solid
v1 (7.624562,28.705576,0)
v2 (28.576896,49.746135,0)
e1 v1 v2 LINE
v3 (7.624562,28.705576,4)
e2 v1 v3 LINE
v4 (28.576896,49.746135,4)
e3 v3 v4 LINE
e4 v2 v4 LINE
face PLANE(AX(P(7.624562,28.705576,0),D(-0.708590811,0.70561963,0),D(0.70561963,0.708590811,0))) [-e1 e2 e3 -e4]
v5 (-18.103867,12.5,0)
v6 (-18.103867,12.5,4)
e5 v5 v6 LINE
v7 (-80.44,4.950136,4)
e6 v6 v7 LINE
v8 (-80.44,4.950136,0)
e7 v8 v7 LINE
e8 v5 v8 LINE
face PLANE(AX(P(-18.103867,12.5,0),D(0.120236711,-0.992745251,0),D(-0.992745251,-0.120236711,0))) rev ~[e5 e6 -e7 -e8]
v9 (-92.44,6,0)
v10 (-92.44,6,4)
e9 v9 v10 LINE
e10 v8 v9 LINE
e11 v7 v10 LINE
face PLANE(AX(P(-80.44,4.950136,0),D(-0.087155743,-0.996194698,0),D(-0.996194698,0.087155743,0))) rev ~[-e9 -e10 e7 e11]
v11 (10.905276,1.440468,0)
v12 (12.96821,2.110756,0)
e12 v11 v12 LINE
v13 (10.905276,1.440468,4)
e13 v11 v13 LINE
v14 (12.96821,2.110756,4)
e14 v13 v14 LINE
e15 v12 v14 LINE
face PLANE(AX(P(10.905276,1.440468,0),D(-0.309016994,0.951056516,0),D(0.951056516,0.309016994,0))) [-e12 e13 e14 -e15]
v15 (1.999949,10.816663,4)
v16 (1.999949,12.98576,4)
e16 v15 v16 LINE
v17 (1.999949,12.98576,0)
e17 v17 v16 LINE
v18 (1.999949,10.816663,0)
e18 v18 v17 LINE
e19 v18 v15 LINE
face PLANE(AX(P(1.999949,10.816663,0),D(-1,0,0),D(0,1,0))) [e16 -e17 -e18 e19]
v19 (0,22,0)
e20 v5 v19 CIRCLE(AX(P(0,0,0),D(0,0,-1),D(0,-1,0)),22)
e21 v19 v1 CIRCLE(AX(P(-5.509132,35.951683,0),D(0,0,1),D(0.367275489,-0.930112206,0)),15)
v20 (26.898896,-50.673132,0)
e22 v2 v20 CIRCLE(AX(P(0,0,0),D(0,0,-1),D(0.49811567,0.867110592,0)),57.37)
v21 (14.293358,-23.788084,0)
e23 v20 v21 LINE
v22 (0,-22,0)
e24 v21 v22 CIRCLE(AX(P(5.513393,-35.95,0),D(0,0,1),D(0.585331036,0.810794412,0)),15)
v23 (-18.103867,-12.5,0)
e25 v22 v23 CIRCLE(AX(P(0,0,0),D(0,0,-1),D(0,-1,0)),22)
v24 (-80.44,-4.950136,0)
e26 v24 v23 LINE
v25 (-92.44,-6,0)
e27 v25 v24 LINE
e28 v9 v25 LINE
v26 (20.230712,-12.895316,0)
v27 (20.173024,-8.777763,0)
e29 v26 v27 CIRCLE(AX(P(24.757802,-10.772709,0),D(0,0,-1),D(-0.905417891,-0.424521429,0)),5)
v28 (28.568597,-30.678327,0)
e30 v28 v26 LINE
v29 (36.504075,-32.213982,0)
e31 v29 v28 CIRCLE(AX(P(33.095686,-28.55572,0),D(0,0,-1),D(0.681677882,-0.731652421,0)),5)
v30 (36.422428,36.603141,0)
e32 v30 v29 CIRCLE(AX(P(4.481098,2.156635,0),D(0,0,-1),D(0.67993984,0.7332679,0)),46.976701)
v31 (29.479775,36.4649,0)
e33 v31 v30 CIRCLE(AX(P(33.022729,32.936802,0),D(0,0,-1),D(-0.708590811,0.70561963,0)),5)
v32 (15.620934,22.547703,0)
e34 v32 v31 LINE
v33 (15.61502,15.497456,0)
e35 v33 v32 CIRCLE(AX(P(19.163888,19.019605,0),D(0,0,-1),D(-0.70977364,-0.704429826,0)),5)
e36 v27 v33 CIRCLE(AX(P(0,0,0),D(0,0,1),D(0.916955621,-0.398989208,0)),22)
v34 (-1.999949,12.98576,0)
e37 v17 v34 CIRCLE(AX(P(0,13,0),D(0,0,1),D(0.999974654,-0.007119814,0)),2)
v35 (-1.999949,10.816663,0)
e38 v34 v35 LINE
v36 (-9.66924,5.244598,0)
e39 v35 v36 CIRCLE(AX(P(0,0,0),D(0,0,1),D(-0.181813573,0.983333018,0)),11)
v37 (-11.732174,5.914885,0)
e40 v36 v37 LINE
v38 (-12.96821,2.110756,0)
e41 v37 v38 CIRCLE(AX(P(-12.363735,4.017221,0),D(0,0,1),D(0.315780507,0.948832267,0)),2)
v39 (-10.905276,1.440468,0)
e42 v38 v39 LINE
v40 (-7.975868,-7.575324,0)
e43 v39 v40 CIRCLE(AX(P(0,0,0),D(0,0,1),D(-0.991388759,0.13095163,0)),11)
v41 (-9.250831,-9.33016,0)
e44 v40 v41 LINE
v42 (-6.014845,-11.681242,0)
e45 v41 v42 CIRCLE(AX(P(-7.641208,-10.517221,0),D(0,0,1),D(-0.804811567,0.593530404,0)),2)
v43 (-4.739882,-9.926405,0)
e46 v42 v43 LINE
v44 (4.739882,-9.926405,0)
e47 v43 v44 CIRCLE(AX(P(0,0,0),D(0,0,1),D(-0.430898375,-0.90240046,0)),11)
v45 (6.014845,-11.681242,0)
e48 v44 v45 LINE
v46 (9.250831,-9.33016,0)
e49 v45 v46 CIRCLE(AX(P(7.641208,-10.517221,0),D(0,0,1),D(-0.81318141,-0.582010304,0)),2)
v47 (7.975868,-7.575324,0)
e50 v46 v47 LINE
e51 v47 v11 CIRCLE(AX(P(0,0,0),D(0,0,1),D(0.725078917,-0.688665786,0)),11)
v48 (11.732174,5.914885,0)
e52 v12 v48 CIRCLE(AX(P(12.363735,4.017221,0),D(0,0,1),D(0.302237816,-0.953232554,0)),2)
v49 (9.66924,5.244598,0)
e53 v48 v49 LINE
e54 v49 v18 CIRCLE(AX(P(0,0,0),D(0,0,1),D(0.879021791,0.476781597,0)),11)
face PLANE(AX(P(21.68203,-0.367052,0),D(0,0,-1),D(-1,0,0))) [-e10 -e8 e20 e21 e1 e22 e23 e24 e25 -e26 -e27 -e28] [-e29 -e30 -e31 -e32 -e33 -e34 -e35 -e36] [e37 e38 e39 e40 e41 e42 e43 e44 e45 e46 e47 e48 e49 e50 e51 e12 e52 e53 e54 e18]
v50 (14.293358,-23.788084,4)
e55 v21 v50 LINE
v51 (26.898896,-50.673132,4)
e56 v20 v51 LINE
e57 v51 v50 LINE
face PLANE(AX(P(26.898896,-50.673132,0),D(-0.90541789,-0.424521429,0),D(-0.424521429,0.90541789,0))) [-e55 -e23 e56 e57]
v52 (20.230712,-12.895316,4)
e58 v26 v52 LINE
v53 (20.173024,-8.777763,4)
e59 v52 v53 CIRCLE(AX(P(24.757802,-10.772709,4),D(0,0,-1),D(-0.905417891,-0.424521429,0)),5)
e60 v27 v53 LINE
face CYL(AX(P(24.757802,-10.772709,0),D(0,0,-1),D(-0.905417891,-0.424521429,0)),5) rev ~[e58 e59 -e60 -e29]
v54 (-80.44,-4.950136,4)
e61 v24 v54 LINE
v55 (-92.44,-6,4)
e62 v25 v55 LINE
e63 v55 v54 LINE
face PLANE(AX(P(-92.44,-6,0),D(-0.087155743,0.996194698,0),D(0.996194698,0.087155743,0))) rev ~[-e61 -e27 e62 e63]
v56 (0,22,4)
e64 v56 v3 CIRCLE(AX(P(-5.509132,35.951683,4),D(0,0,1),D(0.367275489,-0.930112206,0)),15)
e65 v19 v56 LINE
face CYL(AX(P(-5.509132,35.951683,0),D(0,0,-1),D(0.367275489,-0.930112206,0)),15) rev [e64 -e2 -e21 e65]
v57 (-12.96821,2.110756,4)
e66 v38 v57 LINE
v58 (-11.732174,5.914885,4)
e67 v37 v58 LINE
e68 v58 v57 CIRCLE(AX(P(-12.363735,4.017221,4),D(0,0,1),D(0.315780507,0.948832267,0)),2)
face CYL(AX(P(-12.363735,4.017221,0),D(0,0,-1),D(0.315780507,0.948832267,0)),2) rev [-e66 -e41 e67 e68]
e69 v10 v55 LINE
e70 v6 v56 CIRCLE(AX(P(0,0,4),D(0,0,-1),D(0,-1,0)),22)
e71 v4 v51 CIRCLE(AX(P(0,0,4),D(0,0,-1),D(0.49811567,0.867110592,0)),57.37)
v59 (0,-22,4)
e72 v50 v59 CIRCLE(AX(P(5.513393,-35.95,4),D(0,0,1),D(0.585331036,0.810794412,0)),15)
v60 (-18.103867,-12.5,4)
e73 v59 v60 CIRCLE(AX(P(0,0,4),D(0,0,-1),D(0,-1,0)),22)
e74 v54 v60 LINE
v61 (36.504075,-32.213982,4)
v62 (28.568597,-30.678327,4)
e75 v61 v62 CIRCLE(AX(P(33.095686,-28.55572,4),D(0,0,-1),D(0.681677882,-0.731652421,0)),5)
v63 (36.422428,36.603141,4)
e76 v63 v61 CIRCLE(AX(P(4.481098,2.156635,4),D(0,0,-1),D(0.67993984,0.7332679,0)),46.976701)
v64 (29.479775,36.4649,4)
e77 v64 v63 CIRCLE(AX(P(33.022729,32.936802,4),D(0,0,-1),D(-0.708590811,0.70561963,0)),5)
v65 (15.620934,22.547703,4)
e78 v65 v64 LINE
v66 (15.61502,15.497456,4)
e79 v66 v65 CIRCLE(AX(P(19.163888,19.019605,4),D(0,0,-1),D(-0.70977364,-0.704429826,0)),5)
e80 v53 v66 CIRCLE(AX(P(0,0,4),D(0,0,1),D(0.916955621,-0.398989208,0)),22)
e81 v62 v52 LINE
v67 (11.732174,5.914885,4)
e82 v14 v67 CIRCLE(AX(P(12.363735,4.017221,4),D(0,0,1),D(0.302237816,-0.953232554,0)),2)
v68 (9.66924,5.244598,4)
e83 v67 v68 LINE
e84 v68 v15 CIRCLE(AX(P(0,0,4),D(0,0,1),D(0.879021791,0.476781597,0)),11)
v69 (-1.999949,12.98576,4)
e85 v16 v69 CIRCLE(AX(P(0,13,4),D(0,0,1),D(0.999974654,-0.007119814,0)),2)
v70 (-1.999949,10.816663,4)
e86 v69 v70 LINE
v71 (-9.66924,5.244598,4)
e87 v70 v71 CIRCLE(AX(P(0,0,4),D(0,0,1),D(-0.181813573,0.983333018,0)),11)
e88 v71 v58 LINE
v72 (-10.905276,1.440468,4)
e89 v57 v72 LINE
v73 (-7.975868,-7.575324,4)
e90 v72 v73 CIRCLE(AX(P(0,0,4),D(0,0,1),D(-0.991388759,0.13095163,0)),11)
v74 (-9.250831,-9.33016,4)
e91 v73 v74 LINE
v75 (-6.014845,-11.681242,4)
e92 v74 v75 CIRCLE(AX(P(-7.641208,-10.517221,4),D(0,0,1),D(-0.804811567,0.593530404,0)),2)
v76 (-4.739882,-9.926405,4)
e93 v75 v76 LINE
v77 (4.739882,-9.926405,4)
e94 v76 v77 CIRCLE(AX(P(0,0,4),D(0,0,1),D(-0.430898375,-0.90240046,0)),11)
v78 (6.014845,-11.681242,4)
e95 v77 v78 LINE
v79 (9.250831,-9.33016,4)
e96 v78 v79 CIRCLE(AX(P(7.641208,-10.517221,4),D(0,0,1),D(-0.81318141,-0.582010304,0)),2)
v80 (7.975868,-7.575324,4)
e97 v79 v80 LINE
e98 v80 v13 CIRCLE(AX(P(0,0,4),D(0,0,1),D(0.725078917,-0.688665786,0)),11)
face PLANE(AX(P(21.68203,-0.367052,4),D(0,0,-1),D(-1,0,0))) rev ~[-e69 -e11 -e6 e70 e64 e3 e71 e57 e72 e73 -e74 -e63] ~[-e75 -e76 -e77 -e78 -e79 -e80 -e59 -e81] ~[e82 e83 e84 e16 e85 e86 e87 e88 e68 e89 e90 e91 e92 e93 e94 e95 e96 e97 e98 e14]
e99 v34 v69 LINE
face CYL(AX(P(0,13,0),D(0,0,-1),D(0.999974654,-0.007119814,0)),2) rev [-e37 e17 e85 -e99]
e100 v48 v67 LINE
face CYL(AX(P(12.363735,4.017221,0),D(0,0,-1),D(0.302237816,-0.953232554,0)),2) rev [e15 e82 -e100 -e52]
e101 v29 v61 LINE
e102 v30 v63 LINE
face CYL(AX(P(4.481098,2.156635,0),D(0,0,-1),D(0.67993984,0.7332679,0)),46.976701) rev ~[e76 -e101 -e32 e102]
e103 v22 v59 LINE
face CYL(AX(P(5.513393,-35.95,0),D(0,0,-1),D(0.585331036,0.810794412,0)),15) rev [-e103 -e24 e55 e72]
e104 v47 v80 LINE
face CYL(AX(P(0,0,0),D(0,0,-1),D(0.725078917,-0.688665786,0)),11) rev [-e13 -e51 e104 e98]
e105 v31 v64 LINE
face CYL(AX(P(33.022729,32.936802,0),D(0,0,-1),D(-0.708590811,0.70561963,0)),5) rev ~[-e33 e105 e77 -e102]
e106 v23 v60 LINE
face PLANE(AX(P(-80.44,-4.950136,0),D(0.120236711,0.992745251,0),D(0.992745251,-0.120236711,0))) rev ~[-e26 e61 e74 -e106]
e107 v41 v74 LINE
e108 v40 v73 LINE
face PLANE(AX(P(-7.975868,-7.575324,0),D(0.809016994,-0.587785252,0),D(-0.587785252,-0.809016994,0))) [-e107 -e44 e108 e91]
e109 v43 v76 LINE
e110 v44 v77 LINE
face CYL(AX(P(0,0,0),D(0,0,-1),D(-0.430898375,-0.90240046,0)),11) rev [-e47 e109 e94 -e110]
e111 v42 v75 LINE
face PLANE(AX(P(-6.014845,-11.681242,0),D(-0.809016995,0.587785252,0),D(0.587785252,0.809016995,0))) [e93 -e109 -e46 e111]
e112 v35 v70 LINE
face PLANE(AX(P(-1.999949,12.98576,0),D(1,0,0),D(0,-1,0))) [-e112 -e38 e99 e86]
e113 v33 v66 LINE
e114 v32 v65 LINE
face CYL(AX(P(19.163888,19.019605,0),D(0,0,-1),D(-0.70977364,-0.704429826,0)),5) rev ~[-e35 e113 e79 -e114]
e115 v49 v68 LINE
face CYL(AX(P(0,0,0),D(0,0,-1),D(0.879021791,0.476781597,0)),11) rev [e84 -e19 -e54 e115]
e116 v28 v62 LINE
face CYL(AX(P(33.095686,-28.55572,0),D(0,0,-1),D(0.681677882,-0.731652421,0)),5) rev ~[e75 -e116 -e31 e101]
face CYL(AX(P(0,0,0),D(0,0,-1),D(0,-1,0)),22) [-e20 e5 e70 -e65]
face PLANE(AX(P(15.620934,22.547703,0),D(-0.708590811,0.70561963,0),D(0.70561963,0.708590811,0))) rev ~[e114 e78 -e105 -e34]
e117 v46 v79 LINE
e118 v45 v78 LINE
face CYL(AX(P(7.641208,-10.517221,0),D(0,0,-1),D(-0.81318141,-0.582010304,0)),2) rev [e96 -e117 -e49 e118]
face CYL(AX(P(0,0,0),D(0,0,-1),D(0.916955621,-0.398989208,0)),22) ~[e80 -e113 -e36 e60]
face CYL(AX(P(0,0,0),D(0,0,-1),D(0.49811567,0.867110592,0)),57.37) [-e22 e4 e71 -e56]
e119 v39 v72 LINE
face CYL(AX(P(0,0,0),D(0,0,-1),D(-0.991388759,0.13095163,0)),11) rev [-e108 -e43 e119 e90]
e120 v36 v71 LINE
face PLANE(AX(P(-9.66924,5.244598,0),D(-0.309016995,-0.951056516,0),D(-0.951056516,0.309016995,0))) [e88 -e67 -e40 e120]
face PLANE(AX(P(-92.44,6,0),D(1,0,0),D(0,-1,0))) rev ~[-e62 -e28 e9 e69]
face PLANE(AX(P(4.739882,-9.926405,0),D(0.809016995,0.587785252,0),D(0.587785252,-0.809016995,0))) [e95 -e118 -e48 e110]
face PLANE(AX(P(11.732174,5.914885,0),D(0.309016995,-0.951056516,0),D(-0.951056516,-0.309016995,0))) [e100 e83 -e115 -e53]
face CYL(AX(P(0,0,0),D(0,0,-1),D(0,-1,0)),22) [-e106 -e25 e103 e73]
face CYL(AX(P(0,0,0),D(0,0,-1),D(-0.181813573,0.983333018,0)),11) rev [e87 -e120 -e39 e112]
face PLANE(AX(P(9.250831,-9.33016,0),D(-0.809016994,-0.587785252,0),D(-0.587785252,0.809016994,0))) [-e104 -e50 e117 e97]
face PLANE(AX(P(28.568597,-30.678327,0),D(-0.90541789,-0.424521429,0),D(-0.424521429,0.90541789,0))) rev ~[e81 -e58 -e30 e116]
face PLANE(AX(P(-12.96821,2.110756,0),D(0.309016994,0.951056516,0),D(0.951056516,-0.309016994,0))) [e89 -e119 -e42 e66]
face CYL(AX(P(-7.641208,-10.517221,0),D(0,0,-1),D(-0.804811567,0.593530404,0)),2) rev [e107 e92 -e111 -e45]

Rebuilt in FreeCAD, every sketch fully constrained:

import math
import FreeCAD as App
import Part
import Sketcher
Q = App.Units.Quantity

doc = App.newDocument("Part")
params = doc.addObject("Spreadsheet::Sheet", "Params")
for row, (alias, value) in enumerate([
    ("sketch1_radius", "22 mm"),
    ("sketch1_radius2", "15 mm"),
    ("sketch1_radius3", "5 mm"),
    ("sketch1_radius4", "2 mm"),
    ("sketch1_radius5", "11 mm"),
    ("pad1_length", "4 mm"),
], start=1):
    params.set(f"A{row}", alias)
    params.set(f"B{row}", "=" + value)
    params.setAlias(f"B{row}", alias)

body = doc.addObject("PartDesign::Body", "Body")

sketch1 = body.newObject("Sketcher::SketchObject", "Sketch")
sketch1.AttachmentSupport = (doc.getObject("XY_Plane"), [""])
sketch1.MapMode = "FlatFace"
sketch1.addGeometry([
    Part.LineSegment(App.Vector(-18.1, 12.5, 0), App.Vector(-80.4, 5, 0)),
    Part.LineSegment(App.Vector(-80.4, 5, 0), App.Vector(-92.4, 6, 0)),
    Part.LineSegment(App.Vector(-92.4, 6, 0), App.Vector(-92.4, -6, 0)),
    Part.LineSegment(App.Vector(-92.4, -6, 0), App.Vector(-80.4, -5, 0)),
    Part.LineSegment(App.Vector(-80.4, -5, 0), App.Vector(-18.1, -12.5, 0)),
    Part.ArcOfCircle(Part.Circle(App.Vector(0, 0, 0), App.Vector(0, 0, 1), 22), math.radians(-145), math.radians(-90)),
    Part.ArcOfCircle(Part.Circle(App.Vector(5.5, -35.9, 0), App.Vector(0, 0, 1), 15), math.radians(54), math.radians(112)),
    Part.LineSegment(App.Vector(14.3, -23.8, 0), App.Vector(26.9, -50.7, 0)),
    Part.ArcOfCircle(Part.Circle(App.Vector(0, 0, 0), App.Vector(0, 0, 1), 57.4), math.radians(-62), math.radians(60)),
    Part.LineSegment(App.Vector(28.6, 49.7, 0), App.Vector(7.6, 28.7, 0)),
    Part.ArcOfCircle(Part.Circle(App.Vector(-5.5, 36, 0), App.Vector(0, 0, 1), 15), math.radians(-68), math.radians(-29)),
    Part.ArcOfCircle(Part.Circle(App.Vector(0, 0, 0), App.Vector(0, 0, 1), 22), math.radians(90), math.radians(145)),
    Part.ArcOfCircle(Part.Circle(App.Vector(24.8, -10.8, 0), App.Vector(0, 0, 1), 5), math.radians(156), math.radians(205)),
    Part.ArcOfCircle(Part.Circle(App.Vector(0, 0, 0), App.Vector(0, 0, 1), 22), math.radians(-24), math.radians(45)),
    Part.ArcOfCircle(Part.Circle(App.Vector(19.2, 19, 0), App.Vector(0, 0, 1), 5), math.radians(135), math.radians(225)),
    Part.LineSegment(App.Vector(15.6, 22.5, 0), App.Vector(29.5, 36.5, 0)),
    Part.ArcOfCircle(Part.Circle(App.Vector(33, 32.9, 0), App.Vector(0, 0, 1), 5), math.radians(47), math.radians(135)),
    Part.ArcOfCircle(Part.Circle(App.Vector(4.5, 2.2, 0), App.Vector(0, 0, 1), 47), math.radians(-47), math.radians(47)),
    Part.ArcOfCircle(Part.Circle(App.Vector(33.1, -28.6, 0), App.Vector(0, 0, 1), 5), math.radians(-155), math.radians(-47)),
    Part.LineSegment(App.Vector(28.6, -30.7, 0), App.Vector(20.2, -12.9, 0)),
    Part.LineSegment(App.Vector(-10.9, 1.4, 0), App.Vector(-13, 2.1, 0)),
    Part.ArcOfCircle(Part.Circle(App.Vector(-12.4, 4, 0), App.Vector(0, 0, 1), 2), math.radians(72), math.radians(252)),
    Part.LineSegment(App.Vector(-11.7, 5.9, 0), App.Vector(-9.7, 5.2, 0)),
    Part.ArcOfCircle(Part.Circle(App.Vector(0, 0, 0), App.Vector(0, 0, 1), 11), math.radians(100), math.radians(152)),
    Part.LineSegment(App.Vector(-2, 10.8, 0), App.Vector(-2, 13, 0)),
    Part.ArcOfCircle(Part.Circle(App.Vector(0, 13, 0), App.Vector(0, 0, 1), 2), math.radians(0), math.radians(180)),
    Part.LineSegment(App.Vector(2, 13, 0), App.Vector(2, 10.8, 0)),
    Part.ArcOfCircle(Part.Circle(App.Vector(0, 0, 0), App.Vector(0, 0, 1), 11), math.radians(28), math.radians(80)),
    Part.LineSegment(App.Vector(9.7, 5.2, 0), App.Vector(11.7, 5.9, 0)),
    Part.ArcOfCircle(Part.Circle(App.Vector(12.4, 4, 0), App.Vector(0, 0, 1), 2), math.radians(-72), math.radians(108)),
    Part.LineSegment(App.Vector(13, 2.1, 0), App.Vector(10.9, 1.4, 0)),
    Part.ArcOfCircle(Part.Circle(App.Vector(0, 0, 0), App.Vector(0, 0, 1), 11), math.radians(-44), math.radians(8)),
    Part.LineSegment(App.Vector(8, -7.6, 0), App.Vector(9.3, -9.3, 0)),
    Part.ArcOfCircle(Part.Circle(App.Vector(7.6, -10.5, 0), App.Vector(0, 0, 1), 2), math.radians(-144), math.radians(36)),
    Part.LineSegment(App.Vector(6, -11.7, 0), App.Vector(4.7, -9.9, 0)),
    Part.ArcOfCircle(Part.Circle(App.Vector(0, 0, 0), App.Vector(0, 0, 1), 11), math.radians(-116), math.radians(-64)),
    Part.LineSegment(App.Vector(-4.7, -9.9, 0), App.Vector(-6, -11.7, 0)),
    Part.ArcOfCircle(Part.Circle(App.Vector(-7.6, -10.5, 0), App.Vector(0, 0, 1), 2), math.radians(144), math.radians(324)),
    Part.LineSegment(App.Vector(-9.3, -9.3, 0), App.Vector(-8, -7.6, 0)),
    Part.ArcOfCircle(Part.Circle(App.Vector(0, 0, 0), App.Vector(0, 0, 1), 11), math.radians(172), math.radians(224)),
], False)
sketch1.addConstraint([
    Sketcher.Constraint("Coincident", 0, 2, 1, 1),
    Sketcher.Constraint("Coincident", 1, 2, 2, 1),
    Sketcher.Constraint("Coincident", 2, 2, 3, 1),
    Sketcher.Constraint("Coincident", 3, 2, 4, 1),
    Sketcher.Constraint("Coincident", 4, 2, 5, 1),
    Sketcher.Constraint("Coincident", 5, 2, 6, 2),
    Sketcher.Constraint("Coincident", 6, 1, 7, 1),
    Sketcher.Constraint("Coincident", 7, 2, 8, 1),
    Sketcher.Constraint("Coincident", 8, 2, 9, 1),
    Sketcher.Constraint("Coincident", 9, 2, 10, 2),
    Sketcher.Constraint("Coincident", 10, 1, 11, 1),
    Sketcher.Constraint("Coincident", 11, 2, 0, 1),
    Sketcher.Constraint("Tangent", 12, 1, 13, 1),
    Sketcher.Constraint("Tangent", 13, 2, 14, 2),
    Sketcher.Constraint("Tangent", 14, 1, 15, 1),
    Sketcher.Constraint("Tangent", 15, 2, 16, 2),
    Sketcher.Constraint("Tangent", 16, 1, 17, 2),
    Sketcher.Constraint("Tangent", 17, 1, 18, 2),
    Sketcher.Constraint("Tangent", 18, 1, 19, 1),
    Sketcher.Constraint("Tangent", 19, 2, 12, 2),
    Sketcher.Constraint("Coincident", 20, 2, 21, 2),
    Sketcher.Constraint("Coincident", 21, 1, 22, 1),
    Sketcher.Constraint("Coincident", 22, 2, 23, 2),
    Sketcher.Constraint("Coincident", 23, 1, 24, 1),
    Sketcher.Constraint("Coincident", 24, 2, 25, 2),
    Sketcher.Constraint("Coincident", 25, 1, 26, 1),
    Sketcher.Constraint("Coincident", 26, 2, 27, 2),
    Sketcher.Constraint("Coincident", 27, 1, 28, 1),
    Sketcher.Constraint("Coincident", 28, 2, 29, 2),
    Sketcher.Constraint("Coincident", 29, 1, 30, 1),
    Sketcher.Constraint("Coincident", 30, 2, 31, 2),
    Sketcher.Constraint("Coincident", 31, 1, 32, 1),
    Sketcher.Constraint("Coincident", 32, 2, 33, 2),
    Sketcher.Constraint("Coincident", 33, 1, 34, 1),
    Sketcher.Constraint("Coincident", 34, 2, 35, 2),
    Sketcher.Constraint("Coincident", 35, 1, 36, 1),
    Sketcher.Constraint("Coincident", 36, 2, 37, 2),
    Sketcher.Constraint("Coincident", 37, 1, 38, 1),
    Sketcher.Constraint("Coincident", 38, 2, 39, 2),
    Sketcher.Constraint("Coincident", 39, 1, 20, 1),
    Sketcher.Constraint("Vertical", 2),
    Sketcher.Constraint("Vertical", 24),
    Sketcher.Constraint("Vertical", 26),
    Sketcher.Constraint("Coincident", 5, 3, -1, 1),
    Sketcher.Constraint("Coincident", 8, 3, -1, 1),
    Sketcher.Constraint("Coincident", 11, 3, -1, 1),
    Sketcher.Constraint("Coincident", 13, 3, -1, 1),
    Sketcher.Constraint("Coincident", 23, 3, -1, 1),
    Sketcher.Constraint("Coincident", 27, 3, -1, 1),
    Sketcher.Constraint("Coincident", 31, 3, -1, 1),
    Sketcher.Constraint("Coincident", 35, 3, -1, 1),
    Sketcher.Constraint("Coincident", 39, 3, -1, 1),
    Sketcher.Constraint("Equal", 6, 10),
    Sketcher.Constraint("Equal", 5, 11),
    Sketcher.Constraint("Equal", 11, 13),
    Sketcher.Constraint("Equal", 12, 14),
    Sketcher.Constraint("Equal", 14, 16),
    Sketcher.Constraint("Equal", 16, 18),
    Sketcher.Constraint("Equal", 21, 25),
    Sketcher.Constraint("Equal", 23, 27),
    Sketcher.Constraint("Equal", 25, 29),
    Sketcher.Constraint("Equal", 27, 31),
    Sketcher.Constraint("Equal", 29, 33),
    Sketcher.Constraint("Equal", 31, 35),
    Sketcher.Constraint("Equal", 33, 37),
    Sketcher.Constraint("Equal", 35, 39),
    Sketcher.Constraint("Symmetric", 21, 3, 29, 3, -2),
    Sketcher.Constraint("Symmetric", 33, 3, 37, 3, -2),
    Sketcher.Constraint("Symmetric", 24, 2, 25, 1, -2),
    Sketcher.Constraint("Symmetric", 0, 2, 3, 2, -1),
    Sketcher.Constraint("PointOnObject", 5, 2, -2),
    Sketcher.Constraint("PointOnObject", 10, 1, -2),
    Sketcher.Constraint("Parallel", 9, 15),
    Sketcher.Constraint("Parallel", 7, 19),
    Sketcher.Constraint("Parallel", 20, 22),
    Sketcher.Constraint("Parallel", 28, 30),
    Sketcher.Constraint("Parallel", 32, 34),
    Sketcher.Constraint("Parallel", 36, 38),
    Sketcher.Constraint("Horizontal", 22, 2, 27, 1),
    Sketcher.Constraint("Horizontal", 21, 1, 28, 2),
    Sketcher.Constraint("Horizontal", 20, 2, 29, 1),
    Sketcher.Constraint("Horizontal", 34, 2, 35, 1),
    Sketcher.Constraint("Horizontal", 33, 1, 36, 2),
    Sketcher.Constraint("Horizontal", 32, 2, 37, 1),
    Sketcher.Constraint("Vertical", 4, 2, 11, 2),
    Sketcher.Constraint("Equal", 1, 3),
    Sketcher.Constraint("Equal", 7, 9),
    Sketcher.Constraint("Equal", 15, 19),
    Sketcher.Constraint("Equal", 20, 22),
    Sketcher.Constraint("Equal", 30, 32),
    Sketcher.Constraint("Equal", 32, 34),
    Sketcher.Constraint("Radius", 5, Q("22 mm")),
    Sketcher.Constraint("Radius", 6, Q("15 mm")),
    Sketcher.Constraint("Radius", 12, Q("5 mm")),
    Sketcher.Constraint("Radius", 21, Q("2 mm")),
    Sketcher.Constraint("Radius", 23, Q("11 mm")),
    Sketcher.Constraint("DistanceY", 2, 2, 2, 1, Q("12 mm")),
    Sketcher.Constraint("Angle", 1, Q("175 deg")),
    Sketcher.Constraint("Angle", 20, Q("162 deg")),
    Sketcher.Constraint("Angle", 32, Q("-54 deg")),
    Sketcher.Constraint("Radius", 8, Q("57.37 mm")),
    Sketcher.Constraint("DistanceY", -1, 1, 25, 3, Q("13 mm")),
    Sketcher.Constraint("DistanceY", 4, 2, -1, 1, Q("12.5 mm")),
    Sketcher.Constraint("Radius", 17, Q("46.976701 mm")),
    Sketcher.Constraint("DistanceY", 6, 3, -1, 1, Q("35.95 mm")),
    Sketcher.Constraint("DistanceX", 0, 2, -1, 1, Q("80.44 mm")),
    Sketcher.Constraint("DistanceX", 1, 2, -1, 1, Q("92.44 mm")),
    Sketcher.Constraint("DistanceX", -1, 1, 12, 3, Q("24.757802 mm")),
    Sketcher.Constraint("DistanceY", -1, 1, 16, 3, Q("32.936802 mm")),
    Sketcher.Constraint("DistanceY", -1, 1, 15, 2, Q("36.4649 mm")),
    Sketcher.Constraint("DistanceY", 24, 1, 24, 2, Q("2.169097 mm")),
    Sketcher.Constraint("DistanceX", -1, 1, 14, 3, Q("19.163888 mm")),
    Sketcher.Constraint("DistanceY", 18, 3, -1, 1, Q("28.55572 mm")),
    Sketcher.Constraint("DistanceY", -1, 1, 21, 3, Q("4.017221 mm")),
    Sketcher.Constraint("DistanceX", -1, 1, 33, 3, Q("7.641208 mm")),
    Sketcher.Constraint("DistanceY", 33, 3, -1, 1, Q("10.517221 mm")),
    Sketcher.Constraint("DistanceX", -1, 1, 6, 1, Q("14.293358 mm")),
    Sketcher.Constraint("DistanceX", 20, 2, -1, 1, Q("12.96821 mm")),
    Sketcher.Constraint("DistanceX", 22, 2, -1, 1, Q("9.66924 mm")),
    Sketcher.Constraint("DistanceX", 10, 3, -1, 1, Q("5.509132 mm")),
])
sketch1.setExpression("Constraints[91]", "Params.sketch1_radius")
sketch1.setExpression("Constraints[92]", "Params.sketch1_radius2")
sketch1.setExpression("Constraints[93]", "Params.sketch1_radius3")
sketch1.setExpression("Constraints[94]", "Params.sketch1_radius4")
sketch1.setExpression("Constraints[95]", "Params.sketch1_radius5")
pad1 = body.newObject("PartDesign::Pad", "Pad")
pad1.Profile = sketch1
pad1.setExpression("Length", "Params.pad1_length")

doc.recompute()
